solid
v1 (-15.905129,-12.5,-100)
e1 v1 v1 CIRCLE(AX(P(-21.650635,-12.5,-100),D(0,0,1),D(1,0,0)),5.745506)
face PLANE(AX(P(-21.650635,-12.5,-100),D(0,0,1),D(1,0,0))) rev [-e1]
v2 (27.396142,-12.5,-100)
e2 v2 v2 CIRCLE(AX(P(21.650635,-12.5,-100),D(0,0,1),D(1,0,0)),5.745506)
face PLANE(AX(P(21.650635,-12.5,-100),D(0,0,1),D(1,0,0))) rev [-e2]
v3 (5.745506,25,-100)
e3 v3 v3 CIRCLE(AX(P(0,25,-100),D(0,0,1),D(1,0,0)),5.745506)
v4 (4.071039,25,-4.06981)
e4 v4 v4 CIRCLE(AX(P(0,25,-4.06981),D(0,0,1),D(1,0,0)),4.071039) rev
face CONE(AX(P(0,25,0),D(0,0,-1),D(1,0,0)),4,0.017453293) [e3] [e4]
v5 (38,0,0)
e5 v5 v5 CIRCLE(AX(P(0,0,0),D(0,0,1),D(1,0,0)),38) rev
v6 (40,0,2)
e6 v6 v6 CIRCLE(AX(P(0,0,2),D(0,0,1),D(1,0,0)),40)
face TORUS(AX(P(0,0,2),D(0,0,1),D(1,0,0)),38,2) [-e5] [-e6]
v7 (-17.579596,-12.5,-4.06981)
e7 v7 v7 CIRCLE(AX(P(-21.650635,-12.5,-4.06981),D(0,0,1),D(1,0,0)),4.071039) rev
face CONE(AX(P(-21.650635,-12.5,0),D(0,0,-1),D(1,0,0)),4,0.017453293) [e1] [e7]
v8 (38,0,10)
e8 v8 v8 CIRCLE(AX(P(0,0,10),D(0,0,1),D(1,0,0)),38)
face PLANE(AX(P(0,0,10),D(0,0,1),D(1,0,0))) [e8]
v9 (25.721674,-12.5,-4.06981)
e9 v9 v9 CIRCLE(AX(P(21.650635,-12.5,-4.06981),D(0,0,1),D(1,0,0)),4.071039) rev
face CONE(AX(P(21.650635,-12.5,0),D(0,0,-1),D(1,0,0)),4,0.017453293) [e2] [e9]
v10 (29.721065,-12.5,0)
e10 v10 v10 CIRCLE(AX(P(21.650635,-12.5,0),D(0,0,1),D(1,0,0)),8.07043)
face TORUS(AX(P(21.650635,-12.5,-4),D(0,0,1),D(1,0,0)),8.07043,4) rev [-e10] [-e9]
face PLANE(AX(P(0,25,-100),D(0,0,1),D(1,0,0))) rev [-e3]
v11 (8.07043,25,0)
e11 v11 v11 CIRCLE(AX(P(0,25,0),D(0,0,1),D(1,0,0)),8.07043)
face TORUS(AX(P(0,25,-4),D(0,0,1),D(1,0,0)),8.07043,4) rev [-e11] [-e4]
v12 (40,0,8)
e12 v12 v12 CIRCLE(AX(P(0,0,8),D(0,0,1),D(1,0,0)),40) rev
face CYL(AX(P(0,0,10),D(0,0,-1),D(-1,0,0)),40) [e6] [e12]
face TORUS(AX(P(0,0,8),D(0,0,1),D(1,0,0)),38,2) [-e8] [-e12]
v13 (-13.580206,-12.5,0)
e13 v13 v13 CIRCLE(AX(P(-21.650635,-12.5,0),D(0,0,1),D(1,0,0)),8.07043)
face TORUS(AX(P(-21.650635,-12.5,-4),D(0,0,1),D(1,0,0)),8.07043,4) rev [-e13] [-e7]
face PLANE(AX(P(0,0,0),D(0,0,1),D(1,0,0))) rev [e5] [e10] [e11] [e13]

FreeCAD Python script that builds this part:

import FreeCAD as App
import Part
import Sketcher
from FreeCAD import Vector
Q = App.Units.Quantity


def edges_at(feature, points):
    """Names of the edges that pass closest to the given points."""
    edges = feature.Shape.Edges
    near = lambda p: min(range(len(edges)), key=lambda i: edges[i].distToShape(Part.Vertex(*p))[0])
    return sorted({f"Edge{near(p) + 1}" for p in points})


def faces_at(feature, points):
    """Names of the faces that lie closest to the given points."""
    faces = feature.Shape.Faces
    near = lambda p: min(range(len(faces)), key=lambda i: faces[i].distToShape(Part.Vertex(*p))[0])
    return sorted({f"Face{near(p) + 1}" for p in points})

doc = App.newDocument("Part")
body = doc.addObject("PartDesign::Body", "Body")

# Sketch on XY plane
sketch1 = body.newObject("Sketcher::SketchObject", "Sketch")
sketch1.AttachmentSupport = (doc.getObject("XY_Plane"), [""])
sketch1.MapMode = "FlatFace"
sketch1.addGeometry(Part.Circle(Vector(0, 0, 0), Vector(0, 0, 1), 40), False)
sketch1.addConstraint([
    Sketcher.Constraint("Coincident", 0, 3, -1, 1),
    Sketcher.Constraint("Diameter", 0, Q("80 mm")),
])
pad1 = body.newObject("PartDesign::Pad", "Pad")
pad1.Profile = sketch1
pad1.Length = 10
body2 = doc.addObject("PartDesign::Body", "Body001")

# Sketch on XY plane
sketch2 = body2.newObject("Sketcher::SketchObject", "Sketch001")
sketch2.AttachmentSupport = (doc.getObject("XY_Plane001"), [""])
sketch2.MapMode = "FlatFace"
sketch2.addGeometry(Part.Circle(Vector(0, 25, 0), Vector(0, 0, 1), 4), False)
sketch2.addConstraint([
    Sketcher.Constraint("PointOnObject", 0, 3, -2),
    Sketcher.Constraint("Diameter", 0, Q("8 mm")),
    Sketcher.Constraint("DistanceY", -1, 1, 0, 3, Q("25 mm")),
])
pad2 = body2.newObject("PartDesign::Pad", "Pad001")
pad2.Profile = sketch2
pad2.Length = 100
pad2.Reversed = True
doc.recompute()

draft = body2.newObject("PartDesign::Draft", "Draft")
draft.Base = (pad2, faces_at(pad2, [(-4, 25, -50)]))
draft.NeutralPlane = (doc.getObject("XY_Plane001"), [""])
draft.Angle = 1
draft.Reversed = False
doc.recompute()

boolean = body.newObject("PartDesign::Boolean", "Boolean")
boolean.Type = "Fuse"
boolean.addObjects([body2])
body3 = doc.addObject("PartDesign::Body", "Body002")

# Sketch on XY plane
sketch3 = body3.newObject("Sketcher::SketchObject", "Sketch002")
sketch3.AttachmentSupport = (doc.getObject("XY_Plane002"), [""])
sketch3.MapMode = "FlatFace"
sketch3.addGeometry(Part.Circle(Vector(21.7, -12.5, 0), Vector(0, 0, 1), 4), False)
sketch3.addConstraint([
    Sketcher.Constraint("Diameter", 0, Q("8 mm")),
    Sketcher.Constraint("DistanceY", 0, 3, -1, 1, Q("12.5 mm")),
    Sketcher.Constraint("DistanceX", -1, 1, 0, 3, Q("21.650635 mm")),
])
pad3 = body3.newObject("PartDesign::Pad", "Pad002")
pad3.Profile = sketch3
pad3.Length = 100
pad3.Reversed = True
doc.recompute()

draft2 = body3.newObject("PartDesign::Draft", "Draft001")
draft2.Base = (pad3, faces_at(pad3, [(17.651, -12.5, -50)]))
draft2.NeutralPlane = (doc.getObject("XY_Plane002"), [""])
draft2.Angle = 1
draft2.Reversed = False
doc.recompute()

boolean2 = body.newObject("PartDesign::Boolean", "Boolean001")
boolean2.Type = "Fuse"
boolean2.addObjects([body3])
body4 = doc.addObject("PartDesign::Body", "Body003")

# Sketch on XY plane
sketch4 = body4.newObject("Sketcher::SketchObject", "Sketch003")
sketch4.AttachmentSupport = (doc.getObject("XY_Plane003"), [""])
sketch4.MapMode = "FlatFace"
sketch4.addGeometry(Part.Circle(Vector(-21.7, -12.5, 0), Vector(0, 0, 1), 4), False)
sketch4.addConstraint([
    Sketcher.Constraint("Diameter", 0, Q("8 mm")),
    Sketcher.Constraint("DistanceY", 0, 3, -1, 1, Q("12.5 mm")),
    Sketcher.Constraint("DistanceX", 0, 3, -1, 1, Q("21.650635 mm")),
])
pad4 = body4.newObject("PartDesign::Pad", "Pad003")
pad4.Profile = sketch4
pad4.Length = 100
pad4.Reversed = True
doc.recompute()

draft3 = body4.newObject("PartDesign::Draft", "Draft002")
draft3.Base = (pad4, faces_at(pad4, [(-25.651, -12.5, -50)]))
draft3.NeutralPlane = (doc.getObject("XY_Plane003"), [""])
draft3.Angle = 1
draft3.Reversed = False
doc.recompute()

boolean3 = body.newObject("PartDesign::Boolean", "Boolean002")
boolean3.Type = "Fuse"
boolean3.addObjects([body4])
doc.recompute()

fillet = body.newObject("PartDesign::Fillet", "Fillet")
fillet.Base = (boolean3, edges_at(boolean3, [(-40, 0, 10)]))
fillet.Radius = 2
doc.recompute()

fillet2 = body.newObject("PartDesign::Fillet", "Fillet001")
fillet2.Base = (fillet, edges_at(fillet, [(-40, 0, 0)]))
fillet2.Radius = 2
doc.recompute()

fillet3 = body.newObject("PartDesign::Fillet", "Fillet002")
fillet3.Base = (fillet2, edges_at(fillet2, [(-25.651, -12.5, 0), (-4, 25, 0), (17.651, -12.5, 0)]))
fillet3.Radius = 4

doc.recompute()
